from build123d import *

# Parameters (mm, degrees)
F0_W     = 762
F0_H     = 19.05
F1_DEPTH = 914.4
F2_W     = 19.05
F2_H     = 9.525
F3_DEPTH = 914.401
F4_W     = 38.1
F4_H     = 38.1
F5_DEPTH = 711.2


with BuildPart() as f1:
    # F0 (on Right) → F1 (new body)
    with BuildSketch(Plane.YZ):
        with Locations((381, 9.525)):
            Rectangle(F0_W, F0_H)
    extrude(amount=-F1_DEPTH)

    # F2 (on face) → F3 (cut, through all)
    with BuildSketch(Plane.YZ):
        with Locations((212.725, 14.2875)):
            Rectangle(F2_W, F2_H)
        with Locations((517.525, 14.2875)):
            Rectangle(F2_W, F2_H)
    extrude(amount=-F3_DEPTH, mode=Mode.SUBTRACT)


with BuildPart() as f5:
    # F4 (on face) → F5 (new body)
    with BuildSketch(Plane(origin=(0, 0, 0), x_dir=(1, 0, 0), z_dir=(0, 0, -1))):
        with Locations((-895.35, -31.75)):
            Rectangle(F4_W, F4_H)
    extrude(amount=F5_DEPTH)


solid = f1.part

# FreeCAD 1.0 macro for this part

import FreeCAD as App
import Part
import Sketcher
Q = App.Units.Quantity


def add_polygon(sketch, points):
    """Adds a closed chain of lines whose ends are joined by coincident constraints."""
    first, n = sketch.GeometryCount, len(points)
    for a, b in zip(points, points[1:] + points[:1]):
        sketch.addGeometry(Part.LineSegment(App.Vector(*a, 0), App.Vector(*b, 0)), False)
    for i in range(n):
        sketch.addConstraint(Sketcher.Constraint("Coincident", first + i, 2, first + (i + 1) % n, 1))

doc = App.newDocument("Part")
params = doc.addObject("Spreadsheet::Sheet", "Params")
for row, (alias, value) in enumerate([
    ("sketch1_width", "30 in"),
    ("sketch1_height", "0.75 in"),
    ("pad1_length", "36 in"),
    ("sketch2_width", "0.75 in"),
    ("sketch2_height", "0.375 in"),
    ("sketch3_width", "1.5 in"),
    ("pad2_length", "28 in"),
], start=1):
    params.set(f"A{row}", alias)
    params.set(f"B{row}", "=" + value)
    params.setAlias(f"B{row}", alias)

body = doc.addObject("PartDesign::Body", "Body")

# Sketch on YZ plane
sketch1 = body.newObject("Sketcher::SketchObject", "Sketch")
sketch1.AttachmentSupport = (doc.getObject("YZ_Plane"), [""])
sketch1.MapMode = "FlatFace"
add_polygon(sketch1, [(0, 19.05), (0, 0), (762, 0), (762, 19.05)])  # lines 0-3
sketch1.addConstraint(Sketcher.Constraint("Vertical", 0))
sketch1.addConstraint(Sketcher.Constraint("Horizontal", 1))
sketch1.addConstraint(Sketcher.Constraint("Vertical", 2))
sketch1.addConstraint(Sketcher.Constraint("Horizontal", 3))
sketch1.addConstraint(Sketcher.Constraint("Coincident", 0, 2, -1, 1))
sketch1.addConstraint(Sketcher.Constraint("DistanceX", 1, 1, 1, 2, Q("30 in")))
sketch1.addConstraint(Sketcher.Constraint("DistanceY", 0, 2, 0, 1, Q("0.75 in")))
sketch1.setExpression("Constraints[9]", "Params.sketch1_width")
sketch1.setExpression("Constraints[10]", "Params.sketch1_height")
pad1 = body.newObject("PartDesign::Pad", "Pad")
pad1.Profile = sketch1
pad1.setExpression("Length", "Params.pad1_length")
pad1.Reversed = True

# Sketch on YZ plane
sketch2 = body.newObject("Sketcher::SketchObject", "Sketch001")
sketch2.AttachmentSupport = (doc.getObject("YZ_Plane"), [""])
sketch2.MapMode = "FlatFace"
add_polygon(sketch2, [(203.2, 19.05), (203.2, 9.525), (222.25, 9.525), (222.25, 19.05)])  # lines 0-3
add_polygon(sketch2, [(508, 19.05), (508, 9.525), (527.05, 9.525), (527.05, 19.05)])  # lines 4-7
sketch2.addConstraint(Sketcher.Constraint("Vertical", 0))
sketch2.addConstraint(Sketcher.Constraint("Horizontal", 1))
sketch2.addConstraint(Sketcher.Constraint("Vertical", 2))
sketch2.addConstraint(Sketcher.Constraint("Horizontal", 3))
sketch2.addConstraint(Sketcher.Constraint("Vertical", 4))
sketch2.addConstraint(Sketcher.Constraint("Horizontal", 5))
sketch2.addConstraint(Sketcher.Constraint("Vertical", 6))
sketch2.addConstraint(Sketcher.Constraint("Horizontal", 7))
sketch2.addConstraint(Sketcher.Constraint("Horizontal", 1, 2, 4, 2))
sketch2.addConstraint(Sketcher.Constraint("Horizontal", 3, 2, 6, 2))
sketch2.addConstraint(Sketcher.Constraint("Equal", 3, 5))
sketch2.addConstraint(Sketcher.Constraint("DistanceX", -1, 1, 0, 2, Q("8 in")))
sketch2.addConstraint(Sketcher.Constraint("DistanceX", -1, 1, 4, 2, Q("20 in")))
sketch2.addConstraint(Sketcher.Constraint("DistanceX", 1, 1, 1, 2, Q("0.75 in")))
sketch2.addConstraint(Sketcher.Constraint("DistanceY", 0, 2, 0, 1, Q("0.375 in")))
sketch2.addConstraint(Sketcher.Constraint("DistanceY", -1, 1, 2, 2, Q("0.75 in")))
sketch2.setExpression("Constraints[21]", "Params.sketch2_width")
sketch2.setExpression("Constraints[22]", "Params.sketch2_height")
pocket1 = body.newObject("PartDesign::Pocket", "Pocket")
pocket1.Profile = sketch2
pocket1.Type = "ThroughAll"
body2 = doc.addObject("PartDesign::Body", "Body001")

# Sketch on XY plane
sketch3 = body2.newObject("Sketcher::SketchObject", "Sketch002")
sketch3.AttachmentSupport = (doc.getObject("XY_Plane001"), [""])
sketch3.MapMode = "FlatFace"
add_polygon(sketch3, [(-914.4, 12.7), (-914.4, 50.8), (-876.3, 50.8), (-876.3, 12.7)])  # lines 0-3
sketch3.addConstraint(Sketcher.Constraint("Vertical", 0))
sketch3.addConstraint(Sketcher.Constraint("Horizontal", 1))
sketch3.addConstraint(Sketcher.Constraint("Vertical", 2))
sketch3.addConstraint(Sketcher.Constraint("Horizontal", 3))
sketch3.addConstraint(Sketcher.Constraint("Equal", 3, 0))
sketch3.addConstraint(Sketcher.Constraint("DistanceX", 1, 1, 1, 2, Q("1.5 in")))
sketch3.addConstraint(Sketcher.Constraint("DistanceX", 0, 2, -1, 1, Q("36 in")))
sketch3.addConstraint(Sketcher.Constraint("DistanceY", -1, 1, 0, 2, Q("2 in")))
sketch3.setExpression("Constraints[9]", "Params.sketch3_width")
pad2 = body2.newObject("PartDesign::Pad", "Pad001")
pad2.Profile = sketch3
pad2.setExpression("Length", "Params.pad2_length")
pad2.Reversed = True
body2.Visibility = False

doc.recompute()
